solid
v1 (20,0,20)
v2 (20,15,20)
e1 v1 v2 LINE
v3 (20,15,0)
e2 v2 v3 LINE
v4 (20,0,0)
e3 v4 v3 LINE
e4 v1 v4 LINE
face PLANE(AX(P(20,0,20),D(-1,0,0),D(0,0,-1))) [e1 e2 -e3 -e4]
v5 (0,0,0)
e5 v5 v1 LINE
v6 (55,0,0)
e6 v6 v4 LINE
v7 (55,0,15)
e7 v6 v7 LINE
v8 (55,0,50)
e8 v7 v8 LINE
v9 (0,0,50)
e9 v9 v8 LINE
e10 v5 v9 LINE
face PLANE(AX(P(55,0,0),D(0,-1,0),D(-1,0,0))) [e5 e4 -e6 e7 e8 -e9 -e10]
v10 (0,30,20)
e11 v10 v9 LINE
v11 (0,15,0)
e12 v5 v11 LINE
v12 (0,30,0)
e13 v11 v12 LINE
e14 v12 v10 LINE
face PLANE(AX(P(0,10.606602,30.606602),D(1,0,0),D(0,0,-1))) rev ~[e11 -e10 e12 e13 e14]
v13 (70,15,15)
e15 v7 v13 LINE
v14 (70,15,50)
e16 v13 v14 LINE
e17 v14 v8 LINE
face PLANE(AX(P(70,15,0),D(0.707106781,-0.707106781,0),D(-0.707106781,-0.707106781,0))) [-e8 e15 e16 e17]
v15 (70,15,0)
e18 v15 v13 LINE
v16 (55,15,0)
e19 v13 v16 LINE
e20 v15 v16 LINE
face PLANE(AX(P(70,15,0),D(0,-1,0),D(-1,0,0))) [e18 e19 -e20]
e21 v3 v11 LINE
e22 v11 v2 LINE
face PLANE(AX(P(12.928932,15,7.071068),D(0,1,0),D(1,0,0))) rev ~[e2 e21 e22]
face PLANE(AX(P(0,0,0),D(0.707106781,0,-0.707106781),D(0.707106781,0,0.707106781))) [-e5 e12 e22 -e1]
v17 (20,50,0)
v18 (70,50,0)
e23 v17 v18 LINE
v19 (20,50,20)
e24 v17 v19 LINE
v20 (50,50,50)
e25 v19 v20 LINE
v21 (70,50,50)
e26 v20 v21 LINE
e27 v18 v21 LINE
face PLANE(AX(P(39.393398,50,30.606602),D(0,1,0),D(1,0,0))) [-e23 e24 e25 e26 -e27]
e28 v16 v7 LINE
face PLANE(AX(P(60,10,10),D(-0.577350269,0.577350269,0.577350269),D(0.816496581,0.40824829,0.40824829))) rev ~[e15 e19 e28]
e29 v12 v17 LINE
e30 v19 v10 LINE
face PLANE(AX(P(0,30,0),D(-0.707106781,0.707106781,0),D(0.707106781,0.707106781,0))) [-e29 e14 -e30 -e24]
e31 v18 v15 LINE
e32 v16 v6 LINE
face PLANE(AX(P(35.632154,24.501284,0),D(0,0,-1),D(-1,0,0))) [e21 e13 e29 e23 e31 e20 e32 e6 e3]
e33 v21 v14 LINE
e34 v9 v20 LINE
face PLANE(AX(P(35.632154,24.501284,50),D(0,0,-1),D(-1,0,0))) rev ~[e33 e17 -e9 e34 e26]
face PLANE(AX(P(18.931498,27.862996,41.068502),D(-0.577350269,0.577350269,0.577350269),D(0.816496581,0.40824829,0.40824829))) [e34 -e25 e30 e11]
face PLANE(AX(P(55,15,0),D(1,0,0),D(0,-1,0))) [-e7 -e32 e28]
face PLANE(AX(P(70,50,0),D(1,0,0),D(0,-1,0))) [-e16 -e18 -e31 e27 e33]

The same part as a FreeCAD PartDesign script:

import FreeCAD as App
import Part
import Sketcher

V = App.Vector
Q = App.Units.Quantity

doc = App.newDocument("Part")
body = doc.addObject("PartDesign::Body", "Body")

# Sketch on XY plane
sketch1 = doc.addObject("Sketcher::SketchObject", "Sketch")
body.addObject(sketch1)
sketch1.AttachmentSupport = (doc.XY_Plane, [""])
sketch1.MapMode = "FlatFace"
sketch1.addGeometry(Part.LineSegment(V(0, 30, 0), V(0, 0, 0)), False)
sketch1.addGeometry(Part.LineSegment(V(0, 0, 0), V(55, 0, 0)), False)
sketch1.addGeometry(Part.LineSegment(V(55, 0, 0), V(70, 15, 0)), False)
sketch1.addGeometry(Part.LineSegment(V(70, 15, 0), V(70, 50, 0)), False)
sketch1.addGeometry(Part.LineSegment(V(70, 50, 0), V(20, 50, 0)), False)
sketch1.addGeometry(Part.LineSegment(V(20, 50, 0), V(0, 30, 0)), False)
sketch1.addConstraint(Sketcher.Constraint("Coincident", 0, 2, 1, 1))
sketch1.addConstraint(Sketcher.Constraint("Coincident", 1, 2, 2, 1))
sketch1.addConstraint(Sketcher.Constraint("Coincident", 2, 2, 3, 1))
sketch1.addConstraint(Sketcher.Constraint("Coincident", 3, 2, 4, 1))
sketch1.addConstraint(Sketcher.Constraint("Coincident", 4, 2, 5, 1))
sketch1.addConstraint(Sketcher.Constraint("Coincident", 5, 2, 0, 1))
sketch1.addConstraint(Sketcher.Constraint("Vertical", 0))
sketch1.addConstraint(Sketcher.Constraint("Horizontal", 1))
sketch1.addConstraint(Sketcher.Constraint("Vertical", 3))
sketch1.addConstraint(Sketcher.Constraint("Horizontal", 4))
sketch1.addConstraint(Sketcher.Constraint("Coincident", 0, 2, -1, 1))
sketch1.addConstraint(Sketcher.Constraint("Parallel", 2, 5))
sketch1.addConstraint(Sketcher.Constraint("DistanceX", 1, 1, 1, 2, 55.0))
sketch1.addConstraint(Sketcher.Constraint("DistanceX", 4, 2, 4, 1, 50.0))
sketch1.addConstraint(Sketcher.Constraint("DistanceY", 0, 2, 0, 1, 30.0))
sketch1.addConstraint(Sketcher.Constraint("DistanceY", 3, 1, 3, 2, 35.0))
sketch1.addConstraint(Sketcher.Constraint("DistanceX", -1, 1, 2, 2, 70.0))
pad1 = doc.addObject("PartDesign::Pad", "Pad")
body.addObject(pad1)
pad1.Profile = sketch1
pad1.Length = 50

# Sketch on XY plane
sketch2 = doc.addObject("Sketcher::SketchObject", "Sketch001")
body.addObject(sketch2)
sketch2.AttachmentSupport = (doc.XY_Plane, [""])
sketch2.MapMode = "FlatFace"
sketch2.AttachmentOffset = App.Placement(V(0, 0, 50), App.Rotation())
sketch2.addGeometry(Part.LineSegment(V(0, 0, 0), V(50, 50, 0)), False)
sketch2.addGeometry(Part.LineSegment(V(50, 50, 0), V(20, 50, 0)), False)
sketch2.addGeometry(Part.LineSegment(V(20, 50, 0), V(0, 30, 0)), False)
sketch2.addGeometry(Part.LineSegment(V(0, 30, 0), V(0, 0, 0)), False)
sketch2.addConstraint(Sketcher.Constraint("Coincident", 0, 2, 1, 1))
sketch2.addConstraint(Sketcher.Constraint("Coincident", 1, 2, 2, 1))
sketch2.addConstraint(Sketcher.Constraint("Coincident", 2, 2, 3, 1))
sketch2.addConstraint(Sketcher.Constraint("Coincident", 3, 2, 0, 1))
sketch2.addConstraint(Sketcher.Constraint("Horizontal", 1))
sketch2.addConstraint(Sketcher.Constraint("Vertical", 3))
sketch2.addConstraint(Sketcher.Constraint("Coincident", 3, 2, -1, 1))
sketch2.addConstraint(Sketcher.Constraint("Parallel", 0, 2))
sketch2.addConstraint(Sketcher.Constraint("Equal", 1, 3))
sketch2.addConstraint(Sketcher.Constraint("DistanceX", 1, 2, 1, 1, 30.0))
sketch2.addConstraint(Sketcher.Constraint("DistanceX", -1, 1, 0, 2, 50.0))
pocket1 = doc.addObject("PartDesign::Pocket", "Pocket")
body.addObject(pocket1)
pocket1.Profile = sketch2
pocket1.Length = 30

# Sketch on XY plane
sketch3 = doc.addObject("Sketcher::SketchObject", "Sketch002")
body.addObject(sketch3)
sketch3.AttachmentSupport = (doc.XY_Plane, [""])
sketch3.MapMode = "FlatFace"
sketch3.addGeometry(Part.LineSegment(V(55, 15, 0), V(70, 15, 0)), False)
sketch3.addGeometry(Part.LineSegment(V(70, 15, 0), V(55, 0, 0)), False)
sketch3.addGeometry(Part.LineSegment(V(55, 0, 0), V(55, 15, 0)), False)
sketch3.addConstraint(Sketcher.Constraint("Coincident", 0, 2, 1, 1))
sketch3.addConstraint(Sketcher.Constraint("Coincident", 1, 2, 2, 1))
sketch3.addConstraint(Sketcher.Constraint("Coincident", 2, 2, 0, 1))
sketch3.addConstraint(Sketcher.Constraint("Horizontal", 0))
sketch3.addConstraint(Sketcher.Constraint("Vertical", 2))
sketch3.addConstraint(Sketcher.Constraint("PointOnObject", 1, 2, -1))
sketch3.addConstraint(Sketcher.Constraint("Equal", 0, 2))
sketch3.addConstraint(Sketcher.Constraint("DistanceX", 0, 1, 0, 2, 15.0))
sketch3.addConstraint(Sketcher.Constraint("DistanceX", -1, 1, 0, 2, 70.0))
pocket2 = doc.addObject("PartDesign::Pocket", "Pocket001")
body.addObject(pocket2)
pocket2.Profile = sketch3
pocket2.Length = 15
pocket2.Reversed = True

# Sketch on an angled plane
sketch4 = doc.addObject("Sketcher::SketchObject", "Sketch003")
body.addObject(sketch4)
sketch4.Placement = App.Placement(V(13.333333, -13.333333, -13.333333), App.Rotation(V(-0.816496581, -0.40824829, -0.40824829), V(0, 0.707106781, -0.707106781), V(0.577350269, -0.577350269, -0.577350269), "ZXY"))
sketch4.addGeometry(Part.LineSegment(V(-69.402209, 0, 0), V(-51.031036, -10.606602, 0)), False)
sketch4.addGeometry(Part.LineSegment(V(-51.031036, -10.606602, 0), V(-51.031036, 10.606602, 0)), False)
sketch4.addGeometry(Part.LineSegment(V(-51.031036, 10.606602, 0), V(-69.402209, 0, 0)), False)
sketch4.addConstraint(Sketcher.Constraint("Coincident", 0, 2, 1, 1))
sketch4.addConstraint(Sketcher.Constraint("Coincident", 1, 2, 2, 1))
sketch4.addConstraint(Sketcher.Constraint("Coincident", 2, 2, 0, 1))
sketch4.addConstraint(Sketcher.Constraint("Vertical", 1))
sketch4.addConstraint(Sketcher.Constraint("PointOnObject", 2, 2, -1))
sketch4.addConstraint(Sketcher.Constraint("Equal", 0, 2))
sketch4.addConstraint(Sketcher.Constraint("Angle", 0, Q("-30 deg")))
sketch4.addConstraint(Sketcher.Constraint("DistanceY", 0, 2, -1, 1, 10.606602))
sketch4.addConstraint(Sketcher.Constraint("DistanceX", 2, 2, -1, 1, 69.402209))
pad2 = doc.addObject("PartDesign::Pad", "Pad001")
body.addObject(pad2)
pad2.Profile = sketch4
pad2.Length = 15
pad2.Reversed = True

# Sketch on YZ plane
sketch5 = doc.addObject("Sketcher::SketchObject", "Sketch004")
body.addObject(sketch5)
sketch5.AttachmentSupport = (doc.YZ_Plane, [""])
sketch5.MapMode = "FlatFace"
sketch5.addGeometry(Part.LineSegment(V(0, 50, 0), V(30, 20, 0)), False)
sketch5.addGeometry(Part.LineSegment(V(30, 20, 0), V(0, 20, 0)), False)
sketch5.addGeometry(Part.LineSegment(V(0, 20, 0), V(0, 50, 0)), False)
sketch5.addConstraint(Sketcher.Constraint("Coincident", 0, 2, 1, 1))
sketch5.addConstraint(Sketcher.Constraint("Coincident", 1, 2, 2, 1))
sketch5.addConstraint(Sketcher.Constraint("Coincident", 2, 2, 0, 1))
sketch5.addConstraint(Sketcher.Constraint("Horizontal", 1))
sketch5.addConstraint(Sketcher.Constraint("Vertical", 2))
sketch5.addConstraint(Sketcher.Constraint("PointOnObject", 1, 2, -2))
sketch5.addConstraint(Sketcher.Constraint("Equal", 1, 2))
sketch5.addConstraint(Sketcher.Constraint("DistanceX", 1, 2, 1, 1, 30.0))
sketch5.addConstraint(Sketcher.Constraint("DistanceY", -1, 1, 0, 2, 20.0))
pad3 = doc.addObject("PartDesign::Pad", "Pad002")
body.addObject(pad3)
pad3.Profile = sketch5
pad3.Length = 52

# Sketch on XZ plane
sketch6 = doc.addObject("Sketcher::SketchObject", "Sketch005")
body.addObject(sketch6)
sketch6.AttachmentSupport = (doc.XZ_Plane, [""])
sketch6.MapMode = "FlatFace"
sketch6.AttachmentOffset = App.Placement(V(0, 0, -50), App.Rotation())
sketch6.addGeometry(Part.LineSegment(V(20, 20, 0), V(50, 50, 0)), False)
sketch6.addGeometry(Part.LineSegment(V(50, 50, 0), V(50, 20, 0)), False)
sketch6.addGeometry(Part.LineSegment(V(50, 20, 0), V(20, 20, 0)), False)
sketch6.addConstraint(Sketcher.Constraint("Coincident", 0, 2, 1, 1))
sketch6.addConstraint(Sketcher.Constraint("Coincident", 1, 2, 2, 1))
sketch6.addConstraint(Sketcher.Constraint("Coincident", 2, 2, 0, 1))
sketch6.addConstraint(Sketcher.Constraint("Vertical", 1))
sketch6.addConstraint(Sketcher.Constraint("Horizontal", 2))
sketch6.addConstraint(Sketcher.Constraint("Equal", 2, 1))
sketch6.addConstraint(Sketcher.Constraint("DistanceX", 2, 2, 2, 1, 30.0))
sketch6.addConstraint(Sketcher.Constraint("DistanceX", -1, 1, 0, 2, 50.0))
sketch6.addConstraint(Sketcher.Constraint("DistanceY", -1, 1, 0, 2, 50.0))
pad4 = doc.addObject("PartDesign::Pad", "Pad003")
body.addObject(pad4)
pad4.Profile = sketch6
pad4.Length = 52

# Sketch on XZ plane
sketch7 = doc.addObject("Sketcher::SketchObject", "Sketch006")
body.addObject(sketch7)
sketch7.AttachmentSupport = (doc.XZ_Plane, [""])
sketch7.MapMode = "FlatFace"
sketch7.addGeometry(Part.LineSegment(V(20, 20, 0), V(50, 20, 0)), False)
sketch7.addGeometry(Part.LineSegment(V(50, 20, 0), V(50, 50, 0)), False)
sketch7.addGeometry(Part.LineSegment(V(50, 50, 0), V(20, 20, 0)), False)
sketch7.addConstraint(Sketcher.Constraint("Coincident", 0, 2, 1, 1))
sketch7.addConstraint(Sketcher.Constraint("Coincident", 1, 2, 2, 1))
sketch7.addConstraint(Sketcher.Constraint("Coincident", 2, 2, 0, 1))
sketch7.addConstraint(Sketcher.Constraint("Horizontal", 0))
sketch7.addConstraint(Sketcher.Constraint("Vertical", 1))
sketch7.addConstraint(Sketcher.Constraint("Equal", 0, 1))
sketch7.addConstraint(Sketcher.Constraint("DistanceX", 0, 1, 0, 2, 30.0))
sketch7.addConstraint(Sketcher.Constraint("DistanceX", -1, 1, 0, 2, 50.0))
sketch7.addConstraint(Sketcher.Constraint("DistanceY", -1, 1, 0, 2, 20.0))
pocket3 = doc.addObject("PartDesign::Pocket", "Pocket002")
body.addObject(pocket3)
pocket3.Profile = sketch7
pocket3.Length = 52
pocket3.Reversed = True

# Sketch on an angled plane
sketch8 = doc.addObject("Sketcher::SketchObject", "Sketch007")
body.addObject(sketch8)
sketch8.Placement = App.Placement(V(-16.666667, 16.666667, 16.666667), App.Rotation(V(-0.816496581, -0.40824829, -0.40824829), V(0, 0.707106781, -0.707106781), V(0.577350269, -0.577350269, -0.577350269), "ZXY"))
sketch8.addGeometry(Part.LineSegment(V(-20.412415, 7.071068, 0), V(-44.907312, 21.213203, 0)), False)
sketch8.addGeometry(Part.LineSegment(V(-44.907312, 21.213203, 0), V(-81.649658, 0, 0)), False)
sketch8.addGeometry(Part.LineSegment(V(-81.649658, 0, 0), V(-20.412415, 7.071068, 0)), False)
sketch8.addConstraint(Sketcher.Constraint("Coincident", 0, 2, 1, 1))
sketch8.addConstraint(Sketcher.Constraint("Coincident", 1, 2, 2, 1))
sketch8.addConstraint(Sketcher.Constraint("Coincident", 2, 2, 0, 1))
sketch8.addConstraint(Sketcher.Constraint("PointOnObject", 1, 2, -1))
sketch8.addConstraint(Sketcher.Constraint("Angle", 0, Q("150 deg")))
sketch8.addConstraint(Sketcher.Constraint("Angle", 1, Q("-150 deg")))
sketch8.addConstraint(Sketcher.Constraint("Distance", 0, 28.284271))
sketch8.addConstraint(Sketcher.Constraint("Distance", 2, 61.64414))
sketch8.addConstraint(Sketcher.Constraint("DistanceX", 0, 2, -1, 1, 44.907312))
pad5 = doc.addObject("PartDesign::Pad", "Pad004")
body.addObject(pad5)
pad5.Profile = sketch8
pad5.Length = 30

# Sketch on an angled plane
sketch9 = doc.addObject("Sketcher::SketchObject", "Sketch008")
body.addObject(sketch9)
sketch9.Placement = App.Placement(V(-16.666667, 16.666667, 16.666667), App.Rotation(V(0.816496581, 0.40824829, 0.40824829), V(0, 0.707106781, -0.707106781), V(-0.577350269, 0.577350269, 0.577350269), "ZXY"))
sketch9.addGeometry(Part.LineSegment(V(20.412415, -35.355339, 0), V(81.649658, 0, 0)), False)
sketch9.addGeometry(Part.LineSegment(V(81.649658, 0, 0), V(20.412415, 7.071068, 0)), False)
sketch9.addGeometry(Part.LineSegment(V(20.412415, 7.071068, 0), V(20.412415, -35.355339, 0)), False)
sketch9.addConstraint(Sketcher.Constraint("Coincident", 0, 2, 1, 1))
sketch9.addConstraint(Sketcher.Constraint("Coincident", 1, 2, 2, 1))
sketch9.addConstraint(Sketcher.Constraint("Coincident", 2, 2, 0, 1))
sketch9.addConstraint(Sketcher.Constraint("Vertical", 2))
sketch9.addConstraint(Sketcher.Constraint("PointOnObject", 0, 2, -1))
sketch9.addConstraint(Sketcher.Constraint("Angle", 0, Q("30 deg")))
sketch9.addConstraint(Sketcher.Constraint("Distance", 0, 70.710678))
sketch9.addConstraint(Sketcher.Constraint("Distance", 1, 61.64414))
sketch9.addConstraint(Sketcher.Constraint("DistanceX", -1, 1, 0, 2, 81.649658))
pad6 = doc.addObject("PartDesign::Pad", "Pad005")
body.addObject(pad6)
pad6.Profile = sketch9
pad6.Length = 15
pad6.Reversed = True

# Sketch on XZ plane
sketch10 = doc.addObject("Sketcher::SketchObject", "Sketch009")
body.addObject(sketch10)
sketch10.AttachmentSupport = (doc.XZ_Plane, [""])
sketch10.MapMode = "FlatFace"
sketch10.addGeometry(Part.LineSegment(V(0, 50, 0), V(8.660254, 32.679492, 0)), False)
sketch10.addGeometry(Part.LineSegment(V(8.660254, 32.679492, 0), V(17.320508, 41.339746, 0)), False)
sketch10.addGeometry(Part.LineSegment(V(17.320508, 41.339746, 0), V(0, 50, 0)), False)
sketch10.addConstraint(Sketcher.Constraint("Coincident", 0, 2, 1, 1))
sketch10.addConstraint(Sketcher.Constraint("Coincident", 1, 2, 2, 1))
sketch10.addConstraint(Sketcher.Constraint("Coincident", 2, 2, 0, 1))
sketch10.addConstraint(Sketcher.Constraint("PointOnObject", 2, 2, -2))
sketch10.addConstraint(Sketcher.Constraint("Equal", 0, 2))
sketch10.addConstraint(Sketcher.Constraint("Angle", 1, Q("45 deg")))
sketch10.addConstraint(Sketcher.Constraint("DistanceY", -1, 1, 2, 2, 50.0))
sketch10.addConstraint(Sketcher.Constraint("Distance", 1, 12.247449))
sketch10.addConstraint(Sketcher.Constraint("DistanceY", -1, 1, 0, 2, 32.679492))
pocket4 = doc.addObject("PartDesign::Pocket", "Pocket003")
body.addObject(pocket4)
pocket4.Profile = sketch10
pocket4.Length = 15
pocket4.Reversed = True

# Sketch on XZ plane
sketch11 = doc.addObject("Sketcher::SketchObject", "Sketch010")
body.addObject(sketch11)
sketch11.AttachmentSupport = (doc.XZ_Plane, [""])
sketch11.MapMode = "FlatFace"
sketch11.addGeometry(Part.LineSegment(V(20, 20, 0), V(0, 0, 0)), False)
sketch11.addGeometry(Part.LineSegment(V(0, 0, 0), V(20, 0, 0)), False)
sketch11.addGeometry(Part.LineSegment(V(20, 0, 0), V(20, 20, 0)), False)
sketch11.addConstraint(Sketcher.Constraint("Coincident", 0, 2, 1, 1))
sketch11.addConstraint(Sketcher.Constraint("Coincident", 1, 2, 2, 1))
sketch11.addConstraint(Sketcher.Constraint("Coincident", 2, 2, 0, 1))
sketch11.addConstraint(Sketcher.Constraint("Horizontal", 1))
sketch11.addConstraint(Sketcher.Constraint("Vertical", 2))
sketch11.addConstraint(Sketcher.Constraint("Coincident", 0, 2, -1, 1))
sketch11.addConstraint(Sketcher.Constraint("Equal", 1, 2))
sketch11.addConstraint(Sketcher.Constraint("DistanceX", 1, 1, 1, 2, 20.0))
pocket5 = doc.addObject("PartDesign::Pocket", "Pocket004")
body.addObject(pocket5)
pocket5.Profile = sketch11
pocket5.Length = 15

doc.recompute()
